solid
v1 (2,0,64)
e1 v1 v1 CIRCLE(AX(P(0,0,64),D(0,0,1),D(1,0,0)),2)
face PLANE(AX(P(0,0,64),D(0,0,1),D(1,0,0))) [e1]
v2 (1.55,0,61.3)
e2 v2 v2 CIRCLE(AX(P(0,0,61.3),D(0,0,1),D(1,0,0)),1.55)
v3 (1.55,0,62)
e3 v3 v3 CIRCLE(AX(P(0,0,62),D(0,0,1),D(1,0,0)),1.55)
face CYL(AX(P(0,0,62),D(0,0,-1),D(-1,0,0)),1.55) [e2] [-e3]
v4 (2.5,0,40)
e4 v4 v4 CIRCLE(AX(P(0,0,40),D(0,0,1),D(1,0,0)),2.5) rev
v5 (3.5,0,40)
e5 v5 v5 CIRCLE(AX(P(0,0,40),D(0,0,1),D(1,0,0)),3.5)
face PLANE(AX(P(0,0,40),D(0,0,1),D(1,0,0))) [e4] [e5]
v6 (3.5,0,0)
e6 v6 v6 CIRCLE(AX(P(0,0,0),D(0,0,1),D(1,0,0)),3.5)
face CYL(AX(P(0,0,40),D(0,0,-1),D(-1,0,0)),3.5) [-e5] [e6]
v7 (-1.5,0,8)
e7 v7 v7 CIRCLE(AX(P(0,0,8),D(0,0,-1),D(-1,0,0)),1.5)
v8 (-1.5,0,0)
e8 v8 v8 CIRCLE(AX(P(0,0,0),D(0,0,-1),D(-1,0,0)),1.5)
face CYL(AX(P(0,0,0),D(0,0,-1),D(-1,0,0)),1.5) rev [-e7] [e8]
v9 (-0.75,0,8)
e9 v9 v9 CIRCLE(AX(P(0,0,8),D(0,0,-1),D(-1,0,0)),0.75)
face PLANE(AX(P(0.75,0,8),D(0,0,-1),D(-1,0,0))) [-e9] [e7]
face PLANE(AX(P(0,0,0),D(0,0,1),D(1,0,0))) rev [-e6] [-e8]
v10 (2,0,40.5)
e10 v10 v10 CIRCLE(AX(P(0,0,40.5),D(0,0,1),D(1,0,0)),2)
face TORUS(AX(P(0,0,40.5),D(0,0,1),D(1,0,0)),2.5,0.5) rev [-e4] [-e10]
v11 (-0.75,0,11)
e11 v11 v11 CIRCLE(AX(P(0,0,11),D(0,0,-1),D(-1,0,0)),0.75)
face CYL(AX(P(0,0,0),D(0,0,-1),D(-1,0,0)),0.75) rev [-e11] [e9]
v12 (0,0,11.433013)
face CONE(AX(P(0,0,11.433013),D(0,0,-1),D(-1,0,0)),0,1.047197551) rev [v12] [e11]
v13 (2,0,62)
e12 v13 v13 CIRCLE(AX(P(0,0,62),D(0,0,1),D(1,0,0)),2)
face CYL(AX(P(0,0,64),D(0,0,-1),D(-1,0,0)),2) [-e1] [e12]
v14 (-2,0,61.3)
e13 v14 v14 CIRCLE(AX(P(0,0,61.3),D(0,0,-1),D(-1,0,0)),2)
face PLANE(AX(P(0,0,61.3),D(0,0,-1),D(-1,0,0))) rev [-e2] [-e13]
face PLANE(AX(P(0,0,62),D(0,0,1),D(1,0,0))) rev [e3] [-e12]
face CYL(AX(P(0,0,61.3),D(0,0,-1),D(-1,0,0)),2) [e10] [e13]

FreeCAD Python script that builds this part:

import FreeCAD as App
import Part
import Sketcher
Q = App.Units.Quantity


def edges_at(feature, points):
    """Names of the edges that pass closest to the given points."""
    edges = feature.Shape.Edges
    near = lambda p: min(range(len(edges)), key=lambda i: edges[i].distToShape(Part.Vertex(*p))[0])
    return sorted({f"Edge{near(p) + 1}" for p in points})

doc = App.newDocument("Part")
body = doc.addObject("PartDesign::Body", "Body")

sketch1 = doc.addObject("Sketcher::SketchObject", "Sketch")
body.addObject(sketch1)
sketch1.AttachmentSupport = (doc.XY_Plane, [""])
sketch1.MapMode = "FlatFace"
sketch1.addGeometry(Part.Circle(App.Vector(0, 0, 0), App.Vector(0, 0, 1), 3.5), False)
sketch1.addConstraint([
    Sketcher.Constraint("Coincident", 0, 3, -1, 1),
    Sketcher.Constraint("Diameter", 0, Q("7 mm")),
])
pad1 = doc.addObject("PartDesign::Pad", "Pad")
body.addObject(pad1)
pad1.Profile = sketch1
pad1.Length = 40

sketch2 = doc.addObject("Sketcher::SketchObject", "Sketch001")
body.addObject(sketch2)
sketch2.AttachmentSupport = (doc.XY_Plane, [""])
sketch2.MapMode = "FlatFace"
sketch2.addGeometry(Part.Circle(App.Vector(0, 0, 0), App.Vector(0, 0, 1), 2), False)
sketch2.addConstraint([
    Sketcher.Constraint("Coincident", 0, 3, -1, 1),
    Sketcher.Constraint("Diameter", 0, Q("4 mm")),
])
pad2 = doc.addObject("PartDesign::Pad", "Pad001")
body.addObject(pad2)
pad2.Profile = sketch2
pad2.Length = 61.3

sketch3 = doc.addObject("Sketcher::SketchObject", "Sketch002")
body.addObject(sketch3)
sketch3.AttachmentSupport = (doc.XY_Plane, [""])
sketch3.MapMode = "FlatFace"
sketch3.AttachmentOffset = App.Placement(App.Vector(0, 0, 61.3), App.Rotation())
sketch3.addGeometry(Part.Circle(App.Vector(0, 0, 0), App.Vector(0, 0, 1), 1.55), False)
sketch3.addConstraint([
    Sketcher.Constraint("Coincident", 0, 3, -1, 1),
    Sketcher.Constraint("Diameter", 0, Q("3.1 mm")),
])
pad3 = doc.addObject("PartDesign::Pad", "Pad002")
body.addObject(pad3)
pad3.Profile = sketch3
pad3.Length = 0.7

sketch4 = doc.addObject("Sketcher::SketchObject", "Sketch003")
body.addObject(sketch4)
sketch4.AttachmentSupport = (doc.XY_Plane, [""])
sketch4.MapMode = "FlatFace"
sketch4.AttachmentOffset = App.Placement(App.Vector(0, 0, 62), App.Rotation())
sketch4.addGeometry(Part.Circle(App.Vector(0, 0, 0), App.Vector(0, 0, 1), 2), False)
sketch4.addConstraint([
    Sketcher.Constraint("Coincident", 0, 3, -1, 1),
    Sketcher.Constraint("Diameter", 0, Q("4 mm")),
])
pad4 = doc.addObject("PartDesign::Pad", "Pad003")
body.addObject(pad4)
pad4.Profile = sketch4
pad4.Length = 2
doc.recompute()

fillet = doc.addObject("PartDesign::Fillet", "Fillet")
body.addObject(fillet)
fillet.Base = (pad4, edges_at(pad4, [(2, 0, 40)]))
fillet.Radius = 0.5

sketch5 = doc.addObject("Sketcher::SketchObject", "Sketch004")
body.addObject(sketch5)
sketch5.AttachmentSupport = (doc.XY_Plane, [""])
sketch5.MapMode = "FlatFace"
sketch5.addGeometry(Part.Circle(App.Vector(0, 0, 0), App.Vector(0, 0, 1), 0.75), False)
sketch5.addConstraint([
    Sketcher.Constraint("Coincident", 0, 3, -1, 1),
    Sketcher.Constraint("Diameter", 0, Q("1.5 mm")),
])
doc.recompute()
hole = doc.addObject("PartDesign::Hole", "Hole")
body.addObject(hole)
hole.Profile = sketch5
hole.ThreadType = "None"
hole.Diameter = 1.5
hole.DepthType = "Dimension"
hole.Depth = 11
hole.DrillPoint = "Angled"
hole.DrillPointAngle = 120
hole.HoleCutType = "Counterbore"
hole.HoleCutDiameter = 3
hole.HoleCutDepth = 8
hole.Reversed = True

doc.recompute()
